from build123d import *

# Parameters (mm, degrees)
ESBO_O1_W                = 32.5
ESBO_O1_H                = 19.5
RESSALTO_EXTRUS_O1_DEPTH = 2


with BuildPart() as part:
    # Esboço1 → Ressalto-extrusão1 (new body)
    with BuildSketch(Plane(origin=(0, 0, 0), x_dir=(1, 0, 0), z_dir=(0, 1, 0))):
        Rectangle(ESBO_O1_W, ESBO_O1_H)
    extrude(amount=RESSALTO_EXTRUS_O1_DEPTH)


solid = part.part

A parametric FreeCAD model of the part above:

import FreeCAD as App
import Part
import Sketcher
Q = App.Units.Quantity


def add_polygon(sketch, points):
    """Adds a closed chain of lines whose ends are joined by coincident constraints."""
    first, n = sketch.GeometryCount, len(points)
    for a, b in zip(points, points[1:] + points[:1]):
        sketch.addGeometry(Part.LineSegment(App.Vector(*a, 0), App.Vector(*b, 0)), False)
    for i in range(n):
        sketch.addConstraint(Sketcher.Constraint("Coincident", first + i, 2, first + (i + 1) % n, 1))

doc = App.newDocument("Part")
body = doc.addObject("PartDesign::Body", "Body")

sketch1 = body.newObject("Sketcher::SketchObject", "Sketch")
sketch1.AttachmentSupport = (doc.getObject("XZ_Plane"), [""])
sketch1.MapMode = "FlatFace"
add_polygon(sketch1, [(-16, -10), (-16, 10), (16, 10), (16, -10)])
sketch1.addConstraint([
    Sketcher.Constraint("Vertical", 0),
    Sketcher.Constraint("Horizontal", 1),
    Sketcher.Constraint("Vertical", 2),
    Sketcher.Constraint("Horizontal", 3),
    Sketcher.Constraint("Symmetric", 0, 2, 2, 2, -1, 1),
    Sketcher.Constraint("DistanceX", 1, 1, 1, 2, Q("32.5 mm")),
    Sketcher.Constraint("DistanceY", 0, 1, 0, 2, Q("19.5 mm")),
])
pad1 = body.newObject("PartDesign::Pad", "Pad")
pad1.Profile = sketch1
pad1.Length = 2
pad1.Reversed = True

doc.recompute()
